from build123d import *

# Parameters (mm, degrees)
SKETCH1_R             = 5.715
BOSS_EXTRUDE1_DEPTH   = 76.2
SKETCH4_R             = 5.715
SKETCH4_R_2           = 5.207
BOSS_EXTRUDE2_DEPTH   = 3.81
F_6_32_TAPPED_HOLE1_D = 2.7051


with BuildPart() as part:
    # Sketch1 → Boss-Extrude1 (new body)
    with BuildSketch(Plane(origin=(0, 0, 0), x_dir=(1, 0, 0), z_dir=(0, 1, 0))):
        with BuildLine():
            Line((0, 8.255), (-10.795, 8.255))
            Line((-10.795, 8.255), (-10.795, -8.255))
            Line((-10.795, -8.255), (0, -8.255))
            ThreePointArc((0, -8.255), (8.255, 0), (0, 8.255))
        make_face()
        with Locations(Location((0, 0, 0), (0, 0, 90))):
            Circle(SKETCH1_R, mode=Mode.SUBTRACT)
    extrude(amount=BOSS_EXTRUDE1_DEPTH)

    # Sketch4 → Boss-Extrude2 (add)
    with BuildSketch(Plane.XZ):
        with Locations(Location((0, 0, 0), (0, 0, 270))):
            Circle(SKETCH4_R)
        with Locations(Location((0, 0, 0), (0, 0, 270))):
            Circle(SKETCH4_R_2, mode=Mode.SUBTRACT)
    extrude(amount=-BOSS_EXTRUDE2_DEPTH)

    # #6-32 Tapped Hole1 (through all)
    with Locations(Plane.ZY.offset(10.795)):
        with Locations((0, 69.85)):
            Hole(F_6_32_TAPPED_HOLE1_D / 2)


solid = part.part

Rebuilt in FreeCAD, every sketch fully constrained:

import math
import FreeCAD as App
import Part
import Sketcher
Q = App.Units.Quantity

doc = App.newDocument("Part")
params = doc.addObject("Spreadsheet::Sheet", "Params")
for row, (alias, value) in enumerate([
    ("sketch1_diameter", "0.45 in"),
    ("sketch1_radius", "0.325 in"),
    ("sketch1_width", "0.425 in"),
    ("pad1_length", "3 in"),
    ("sketch2_diameter", "0.45 in"),
    ("sketch2_diameter2", "0.41 in"),
    ("pad2_length", "0.15 in"),
    ("hole_diameter", "0.1065 in"),
], start=1):
    params.set(f"A{row}", alias)
    params.set(f"B{row}", "=" + value)
    params.setAlias(f"B{row}", alias)

body = doc.addObject("PartDesign::Body", "Body")

sketch1 = body.newObject("Sketcher::SketchObject", "Sketch")
sketch1.AttachmentSupport = (doc.getObject("XZ_Plane"), [""])
sketch1.MapMode = "FlatFace"
sketch1.addGeometry([
    Part.LineSegment(App.Vector(0, -8, 0), App.Vector(-11, -8, 0)),
    Part.LineSegment(App.Vector(-11, -8, 0), App.Vector(-11, 8, 0)),
    Part.LineSegment(App.Vector(-11, 8, 0), App.Vector(0, 8, 0)),
    Part.ArcOfCircle(Part.Circle(App.Vector(0, 0, 0), App.Vector(0, 0, 1), 8), math.radians(-90), math.radians(90)),
    Part.Circle(App.Vector(0, 0, 0), App.Vector(0, 0, 1), 6),
], False)
sketch1.addConstraint([
    Sketcher.Constraint("Coincident", 0, 2, 1, 1),
    Sketcher.Constraint("Coincident", 1, 2, 2, 1),
    Sketcher.Constraint("Tangent", 2, 2, 3, 2),
    Sketcher.Constraint("Tangent", 3, 1, 0, 1),
    Sketcher.Constraint("Horizontal", 0),
    Sketcher.Constraint("Vertical", 1),
    Sketcher.Constraint("Horizontal", 2),
    Sketcher.Constraint("Coincident", 3, 3, -1, 1),
    Sketcher.Constraint("Coincident", 4, 3, -1, 1),
    Sketcher.Constraint("Diameter", 4, Q("0.45 in")),
    Sketcher.Constraint("Radius", 3, Q("0.325 in")),
    Sketcher.Constraint("DistanceX", 0, 2, 0, 1, Q("0.425 in")),
])
sketch1.setExpression("Constraints[9]", "Params.sketch1_diameter")
sketch1.setExpression("Constraints[10]", "Params.sketch1_radius")
sketch1.setExpression("Constraints[11]", "Params.sketch1_width")
pad1 = body.newObject("PartDesign::Pad", "Pad")
pad1.Profile = sketch1
pad1.setExpression("Length", "Params.pad1_length")
pad1.Reversed = True

sketch2 = body.newObject("Sketcher::SketchObject", "Sketch001")
sketch2.AttachmentSupport = (doc.getObject("XZ_Plane"), [""])
sketch2.MapMode = "FlatFace"
sketch2.addGeometry([
    Part.Circle(App.Vector(0, 0, 0), App.Vector(0, 0, 1), 6),
    Part.Circle(App.Vector(0, 0, 0), App.Vector(0, 0, 1), 5),
], False)
sketch2.addConstraint([
    Sketcher.Constraint("Coincident", 0, 3, -1, 1),
    Sketcher.Constraint("Coincident", 1, 3, -1, 1),
    Sketcher.Constraint("Diameter", 0, Q("0.45 in")),
    Sketcher.Constraint("Diameter", 1, Q("0.41 in")),
])
sketch2.setExpression("Constraints[2]", "Params.sketch2_diameter")
sketch2.setExpression("Constraints[3]", "Params.sketch2_diameter2")
pad2 = body.newObject("PartDesign::Pad", "Pad001")
pad2.Profile = sketch2
pad2.setExpression("Length", "Params.pad2_length")
pad2.Reversed = True

sketch3 = body.newObject("Sketcher::SketchObject", "Sketch002")
sketch3.AttachmentSupport = (doc.getObject("YZ_Plane"), [""])
sketch3.MapMode = "FlatFace"
sketch3.AttachmentOffset = App.Placement(App.Vector(0, 0, -0.425 * 25.4), App.Rotation())
sketch3.addGeometry(Part.Circle(App.Vector(69.8, 0, 0), App.Vector(0, 0, 1), 1.4), False)
sketch3.addConstraint([
    Sketcher.Constraint("PointOnObject", 0, 3, -1),
    Sketcher.Constraint("Diameter", 0, Q("0.1065 in")),
    Sketcher.Constraint("DistanceX", -1, 1, 0, 3, Q("2.75 in")),
])
doc.recompute()
hole = body.newObject("PartDesign::Hole", "Hole")
hole.Profile = sketch3
hole.ThreadType = "None"
hole.setExpression("Diameter", "Params.hole_diameter")
hole.DepthType = "ThroughAll"
hole.Reversed = True

doc.recompute()
